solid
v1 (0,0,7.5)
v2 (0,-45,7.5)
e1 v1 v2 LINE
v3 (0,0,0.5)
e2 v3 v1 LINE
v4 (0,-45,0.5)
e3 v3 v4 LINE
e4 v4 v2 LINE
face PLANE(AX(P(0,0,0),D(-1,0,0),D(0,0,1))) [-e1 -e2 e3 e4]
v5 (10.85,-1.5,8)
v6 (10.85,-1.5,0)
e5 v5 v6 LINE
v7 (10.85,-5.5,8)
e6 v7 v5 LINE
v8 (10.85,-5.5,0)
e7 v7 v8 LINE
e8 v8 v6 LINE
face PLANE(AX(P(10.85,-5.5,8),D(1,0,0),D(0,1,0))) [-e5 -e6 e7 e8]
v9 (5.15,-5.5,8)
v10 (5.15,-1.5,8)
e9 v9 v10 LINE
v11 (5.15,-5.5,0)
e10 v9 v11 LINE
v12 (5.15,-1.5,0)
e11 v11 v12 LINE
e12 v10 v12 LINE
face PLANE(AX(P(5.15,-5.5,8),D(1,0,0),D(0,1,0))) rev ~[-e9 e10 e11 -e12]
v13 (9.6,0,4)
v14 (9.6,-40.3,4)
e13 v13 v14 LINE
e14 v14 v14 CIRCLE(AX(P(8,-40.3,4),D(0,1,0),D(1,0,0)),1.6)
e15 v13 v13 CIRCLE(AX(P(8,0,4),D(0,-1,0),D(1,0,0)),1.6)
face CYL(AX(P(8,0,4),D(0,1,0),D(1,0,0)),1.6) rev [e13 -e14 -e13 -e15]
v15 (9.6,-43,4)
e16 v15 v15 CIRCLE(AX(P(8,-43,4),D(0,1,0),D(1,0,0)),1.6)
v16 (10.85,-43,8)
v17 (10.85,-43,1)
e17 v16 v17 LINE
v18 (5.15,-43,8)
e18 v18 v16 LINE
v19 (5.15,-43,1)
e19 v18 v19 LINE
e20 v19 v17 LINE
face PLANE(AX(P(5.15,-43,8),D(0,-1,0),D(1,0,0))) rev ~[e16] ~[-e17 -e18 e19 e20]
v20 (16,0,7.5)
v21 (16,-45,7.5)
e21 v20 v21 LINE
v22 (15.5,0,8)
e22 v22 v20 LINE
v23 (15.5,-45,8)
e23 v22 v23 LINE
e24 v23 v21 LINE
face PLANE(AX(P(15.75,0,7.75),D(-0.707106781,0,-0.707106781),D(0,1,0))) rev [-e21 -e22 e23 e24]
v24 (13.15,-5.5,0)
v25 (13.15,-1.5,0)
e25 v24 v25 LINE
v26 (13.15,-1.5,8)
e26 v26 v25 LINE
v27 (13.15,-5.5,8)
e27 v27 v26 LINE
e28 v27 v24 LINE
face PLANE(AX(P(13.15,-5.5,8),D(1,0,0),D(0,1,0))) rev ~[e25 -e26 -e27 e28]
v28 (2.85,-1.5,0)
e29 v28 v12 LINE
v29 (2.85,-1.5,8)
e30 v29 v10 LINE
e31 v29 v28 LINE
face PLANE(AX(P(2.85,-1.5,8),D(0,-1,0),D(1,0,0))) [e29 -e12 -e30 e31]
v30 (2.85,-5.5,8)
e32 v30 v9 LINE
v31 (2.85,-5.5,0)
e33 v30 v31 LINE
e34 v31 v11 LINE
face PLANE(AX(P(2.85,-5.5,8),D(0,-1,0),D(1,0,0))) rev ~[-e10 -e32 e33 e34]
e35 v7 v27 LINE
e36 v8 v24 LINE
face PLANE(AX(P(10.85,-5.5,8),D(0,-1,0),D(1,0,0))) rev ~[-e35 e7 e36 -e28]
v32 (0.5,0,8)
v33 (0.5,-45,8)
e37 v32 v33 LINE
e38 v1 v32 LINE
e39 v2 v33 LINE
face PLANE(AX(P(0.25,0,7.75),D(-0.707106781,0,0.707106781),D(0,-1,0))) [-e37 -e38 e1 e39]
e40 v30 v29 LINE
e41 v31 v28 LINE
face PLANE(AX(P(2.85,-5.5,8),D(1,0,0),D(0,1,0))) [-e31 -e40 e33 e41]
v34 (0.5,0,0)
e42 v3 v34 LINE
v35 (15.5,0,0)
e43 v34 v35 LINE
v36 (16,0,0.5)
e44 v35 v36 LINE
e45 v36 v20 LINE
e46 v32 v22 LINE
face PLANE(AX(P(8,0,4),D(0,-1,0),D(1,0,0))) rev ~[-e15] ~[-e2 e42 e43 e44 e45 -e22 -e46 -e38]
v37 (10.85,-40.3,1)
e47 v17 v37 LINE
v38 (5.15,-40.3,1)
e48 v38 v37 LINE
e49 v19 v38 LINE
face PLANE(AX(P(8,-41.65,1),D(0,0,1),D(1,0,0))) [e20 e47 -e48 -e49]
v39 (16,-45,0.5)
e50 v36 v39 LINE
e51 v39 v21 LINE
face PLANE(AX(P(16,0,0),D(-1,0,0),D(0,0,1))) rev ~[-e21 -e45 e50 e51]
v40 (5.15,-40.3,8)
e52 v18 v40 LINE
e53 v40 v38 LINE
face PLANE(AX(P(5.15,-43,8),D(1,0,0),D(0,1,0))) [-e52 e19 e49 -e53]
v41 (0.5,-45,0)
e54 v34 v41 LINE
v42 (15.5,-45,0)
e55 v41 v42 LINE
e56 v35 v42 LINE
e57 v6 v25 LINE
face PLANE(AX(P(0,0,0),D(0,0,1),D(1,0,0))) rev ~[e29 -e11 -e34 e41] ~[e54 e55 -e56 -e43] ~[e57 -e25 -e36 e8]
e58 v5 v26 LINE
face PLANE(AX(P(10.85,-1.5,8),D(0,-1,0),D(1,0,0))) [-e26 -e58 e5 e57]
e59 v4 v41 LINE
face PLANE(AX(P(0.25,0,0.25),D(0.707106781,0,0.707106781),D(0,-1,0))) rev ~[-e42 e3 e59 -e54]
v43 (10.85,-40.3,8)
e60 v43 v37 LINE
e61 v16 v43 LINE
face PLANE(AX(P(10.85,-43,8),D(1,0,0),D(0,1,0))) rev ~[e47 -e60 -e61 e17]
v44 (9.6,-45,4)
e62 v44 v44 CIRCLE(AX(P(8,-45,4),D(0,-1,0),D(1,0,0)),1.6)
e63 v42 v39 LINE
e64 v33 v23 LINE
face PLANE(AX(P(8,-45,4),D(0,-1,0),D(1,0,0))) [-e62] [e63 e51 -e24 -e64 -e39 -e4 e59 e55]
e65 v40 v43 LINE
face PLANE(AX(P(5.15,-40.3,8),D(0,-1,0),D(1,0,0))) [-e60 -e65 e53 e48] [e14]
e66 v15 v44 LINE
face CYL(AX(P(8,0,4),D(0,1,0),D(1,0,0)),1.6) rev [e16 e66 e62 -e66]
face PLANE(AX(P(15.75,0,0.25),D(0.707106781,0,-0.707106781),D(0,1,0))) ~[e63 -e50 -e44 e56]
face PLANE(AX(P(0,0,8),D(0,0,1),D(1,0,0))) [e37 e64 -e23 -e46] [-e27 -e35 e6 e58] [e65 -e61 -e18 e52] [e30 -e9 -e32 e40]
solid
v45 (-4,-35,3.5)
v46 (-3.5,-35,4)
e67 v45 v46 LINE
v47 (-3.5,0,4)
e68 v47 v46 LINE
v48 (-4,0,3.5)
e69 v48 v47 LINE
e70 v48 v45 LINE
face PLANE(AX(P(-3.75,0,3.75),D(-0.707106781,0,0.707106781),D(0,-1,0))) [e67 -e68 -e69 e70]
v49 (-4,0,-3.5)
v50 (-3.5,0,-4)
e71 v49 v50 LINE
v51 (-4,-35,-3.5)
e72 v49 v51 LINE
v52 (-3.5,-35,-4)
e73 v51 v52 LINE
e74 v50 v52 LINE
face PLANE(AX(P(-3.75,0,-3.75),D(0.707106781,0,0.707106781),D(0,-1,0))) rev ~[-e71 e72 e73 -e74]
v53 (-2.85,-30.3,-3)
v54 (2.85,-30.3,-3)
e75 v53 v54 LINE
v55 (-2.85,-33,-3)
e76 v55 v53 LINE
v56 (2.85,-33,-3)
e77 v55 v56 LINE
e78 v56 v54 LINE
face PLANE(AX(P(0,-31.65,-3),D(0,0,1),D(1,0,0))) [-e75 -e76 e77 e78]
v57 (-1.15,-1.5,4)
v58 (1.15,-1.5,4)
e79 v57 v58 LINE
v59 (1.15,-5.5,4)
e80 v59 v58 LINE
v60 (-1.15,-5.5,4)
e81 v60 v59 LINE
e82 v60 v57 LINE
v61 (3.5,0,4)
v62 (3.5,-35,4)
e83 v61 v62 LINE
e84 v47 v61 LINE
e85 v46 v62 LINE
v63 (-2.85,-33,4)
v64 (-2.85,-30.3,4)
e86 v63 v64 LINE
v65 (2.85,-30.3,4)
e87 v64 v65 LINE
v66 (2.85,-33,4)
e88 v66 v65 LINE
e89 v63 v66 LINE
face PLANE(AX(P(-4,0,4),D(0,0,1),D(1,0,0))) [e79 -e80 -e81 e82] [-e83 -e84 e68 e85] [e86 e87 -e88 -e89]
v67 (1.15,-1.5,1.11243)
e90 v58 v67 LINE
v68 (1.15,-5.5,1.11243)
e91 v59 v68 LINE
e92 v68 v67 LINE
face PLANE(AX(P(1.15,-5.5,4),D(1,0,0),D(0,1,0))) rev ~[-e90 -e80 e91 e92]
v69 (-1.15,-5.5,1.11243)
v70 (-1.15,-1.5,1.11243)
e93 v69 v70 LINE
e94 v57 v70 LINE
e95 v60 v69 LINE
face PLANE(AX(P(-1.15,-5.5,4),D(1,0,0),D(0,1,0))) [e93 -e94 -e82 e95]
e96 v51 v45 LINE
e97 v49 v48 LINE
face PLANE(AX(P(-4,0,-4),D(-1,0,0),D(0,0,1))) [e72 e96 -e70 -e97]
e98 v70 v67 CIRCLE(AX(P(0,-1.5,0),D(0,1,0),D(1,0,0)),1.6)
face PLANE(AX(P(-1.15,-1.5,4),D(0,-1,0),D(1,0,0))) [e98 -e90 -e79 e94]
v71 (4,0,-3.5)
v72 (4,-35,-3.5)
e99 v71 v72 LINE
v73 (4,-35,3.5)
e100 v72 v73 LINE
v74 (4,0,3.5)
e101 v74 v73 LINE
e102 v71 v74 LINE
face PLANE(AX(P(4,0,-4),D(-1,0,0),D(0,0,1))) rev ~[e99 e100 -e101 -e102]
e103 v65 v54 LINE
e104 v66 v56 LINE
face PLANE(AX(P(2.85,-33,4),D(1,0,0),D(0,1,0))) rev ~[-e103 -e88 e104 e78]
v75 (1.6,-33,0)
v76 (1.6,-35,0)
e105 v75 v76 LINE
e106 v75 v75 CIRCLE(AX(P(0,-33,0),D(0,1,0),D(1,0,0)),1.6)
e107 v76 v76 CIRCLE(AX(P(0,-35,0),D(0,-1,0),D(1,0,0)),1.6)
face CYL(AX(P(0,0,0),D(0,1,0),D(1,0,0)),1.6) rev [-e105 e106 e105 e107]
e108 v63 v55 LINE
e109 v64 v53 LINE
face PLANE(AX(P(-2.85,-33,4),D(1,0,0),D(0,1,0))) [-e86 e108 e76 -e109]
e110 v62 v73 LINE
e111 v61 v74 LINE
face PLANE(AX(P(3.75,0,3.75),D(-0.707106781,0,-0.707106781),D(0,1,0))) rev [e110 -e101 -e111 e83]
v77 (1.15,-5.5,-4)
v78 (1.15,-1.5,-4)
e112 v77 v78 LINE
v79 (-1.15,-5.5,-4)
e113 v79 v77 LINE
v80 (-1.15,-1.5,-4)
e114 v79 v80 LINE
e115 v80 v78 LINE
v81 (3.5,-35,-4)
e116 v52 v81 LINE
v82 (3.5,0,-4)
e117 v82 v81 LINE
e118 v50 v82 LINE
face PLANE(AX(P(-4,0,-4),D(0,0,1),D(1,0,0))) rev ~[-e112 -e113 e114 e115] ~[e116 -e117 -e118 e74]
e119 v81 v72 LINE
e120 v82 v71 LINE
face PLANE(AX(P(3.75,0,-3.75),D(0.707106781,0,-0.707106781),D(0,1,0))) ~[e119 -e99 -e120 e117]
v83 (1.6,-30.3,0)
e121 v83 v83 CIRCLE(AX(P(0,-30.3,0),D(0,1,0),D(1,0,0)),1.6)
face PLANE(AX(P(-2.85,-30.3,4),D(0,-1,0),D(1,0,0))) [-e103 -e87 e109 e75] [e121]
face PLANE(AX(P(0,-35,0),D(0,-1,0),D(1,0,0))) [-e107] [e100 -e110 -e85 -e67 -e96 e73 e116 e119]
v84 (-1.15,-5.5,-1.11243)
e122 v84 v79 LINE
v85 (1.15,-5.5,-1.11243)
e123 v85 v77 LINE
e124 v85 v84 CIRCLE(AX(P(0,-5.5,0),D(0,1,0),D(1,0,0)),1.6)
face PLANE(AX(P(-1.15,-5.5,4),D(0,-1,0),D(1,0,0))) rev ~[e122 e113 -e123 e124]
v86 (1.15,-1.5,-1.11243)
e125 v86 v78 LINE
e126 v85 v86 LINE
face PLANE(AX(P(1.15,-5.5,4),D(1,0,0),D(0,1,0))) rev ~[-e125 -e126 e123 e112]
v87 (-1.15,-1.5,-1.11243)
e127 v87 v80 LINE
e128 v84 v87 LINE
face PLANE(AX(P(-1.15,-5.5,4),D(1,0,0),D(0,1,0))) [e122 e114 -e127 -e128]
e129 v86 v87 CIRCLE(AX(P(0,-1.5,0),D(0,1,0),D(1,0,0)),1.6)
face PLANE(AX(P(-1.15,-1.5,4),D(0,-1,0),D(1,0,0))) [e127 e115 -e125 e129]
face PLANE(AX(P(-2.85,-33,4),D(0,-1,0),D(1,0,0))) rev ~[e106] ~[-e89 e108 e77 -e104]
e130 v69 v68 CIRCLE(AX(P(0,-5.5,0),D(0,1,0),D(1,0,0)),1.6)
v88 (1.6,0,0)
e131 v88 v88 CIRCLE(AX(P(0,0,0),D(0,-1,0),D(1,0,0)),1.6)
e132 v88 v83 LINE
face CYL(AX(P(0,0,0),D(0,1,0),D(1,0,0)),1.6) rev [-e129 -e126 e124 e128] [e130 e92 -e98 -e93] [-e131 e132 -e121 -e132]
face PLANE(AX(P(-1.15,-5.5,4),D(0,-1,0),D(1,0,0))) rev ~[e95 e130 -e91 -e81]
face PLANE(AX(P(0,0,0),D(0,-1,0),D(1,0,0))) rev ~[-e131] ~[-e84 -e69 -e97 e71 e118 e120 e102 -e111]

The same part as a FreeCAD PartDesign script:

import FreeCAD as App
import Part
import Sketcher
from FreeCAD import Vector
Q = App.Units.Quantity


def edges_at(feature, points):
    """Names of the edges that pass closest to the given points."""
    edges = feature.Shape.Edges
    near = lambda p: min(range(len(edges)), key=lambda i: edges[i].distToShape(Part.Vertex(*p))[0])
    return sorted({f"Edge{near(p) + 1}" for p in points})


def add_polygon(sketch, points):
    """Adds a closed chain of lines whose ends are joined by coincident constraints."""
    first, n = sketch.GeometryCount, len(points)
    for a, b in zip(points, points[1:] + points[:1]):
        sketch.addGeometry(Part.LineSegment(App.Vector(*a, 0), App.Vector(*b, 0)), False)
    for i in range(n):
        sketch.addConstraint(Sketcher.Constraint("Coincident", first + i, 2, first + (i + 1) % n, 1))

doc = App.newDocument("Part")
body = doc.addObject("PartDesign::Body", "Body")

sketch1 = doc.addObject("Sketcher::SketchObject", "Sketch")
body.addObject(sketch1)
sketch1.AttachmentSupport = (doc.XZ_Plane, [""])
sketch1.MapMode = "FlatFace"
add_polygon(sketch1, [(-4, 4), (-4, -4), (4, -4), (4, 4)])
sketch1.addGeometry(Part.Circle(Vector(0, 0, 0), Vector(0, 0, 1), 1.6), False)
sketch1.addConstraint([
    Sketcher.Constraint("Vertical", 0),
    Sketcher.Constraint("Horizontal", 1),
    Sketcher.Constraint("Vertical", 2),
    Sketcher.Constraint("Horizontal", 3),
    Sketcher.Constraint("Coincident", 4, 3, -1, 1),
    Sketcher.Constraint("Symmetric", 0, 2, 2, 2, -1, 1),
    Sketcher.Constraint("Equal", 3, 0),
    Sketcher.Constraint("Diameter", 4, Q("3.2 mm")),
    Sketcher.Constraint("DistanceX", 1, 1, 1, 2, Q("8 mm")),
])
pad1 = doc.addObject("PartDesign::Pad", "Pad")
body.addObject(pad1)
pad1.Profile = sketch1
pad1.Length = 35

sketch2 = doc.addObject("Sketcher::SketchObject", "Sketch001")
body.addObject(sketch2)
sketch2.AttachmentSupport = (doc.XY_Plane, [""])
sketch2.MapMode = "FlatFace"
sketch2.AttachmentOffset = App.Placement(Vector(0, 0, 4), App.Rotation())
add_polygon(sketch2, [(-2.9, -30.3), (-2.9, -33), (2.9, -33), (2.9, -30.3)])
sketch2.addConstraint([
    Sketcher.Constraint("Vertical", 0),
    Sketcher.Constraint("Horizontal", 1),
    Sketcher.Constraint("Vertical", 2),
    Sketcher.Constraint("Horizontal", 3),
    Sketcher.Constraint("DistanceX", 1, 1, 1, 2, Q("5.7 mm")),
    Sketcher.Constraint("DistanceY", 0, 2, 0, 1, Q("2.7 mm")),
    Sketcher.Constraint("DistanceY", 0, 2, -1, 1, Q("33 mm")),
    Sketcher.Constraint("DistanceX", 0, 2, -1, 1, Q("2.85 mm")),
])
pocket1 = doc.addObject("PartDesign::Pocket", "Pocket")
body.addObject(pocket1)
pocket1.Profile = sketch2
pocket1.Length = 7

sketch3 = doc.addObject("Sketcher::SketchObject", "Sketch002")
body.addObject(sketch3)
sketch3.AttachmentSupport = (doc.XY_Plane, [""])
sketch3.MapMode = "FlatFace"
sketch3.AttachmentOffset = App.Placement(Vector(0, 0, 4), App.Rotation())
add_polygon(sketch3, [(-1.1, -1.5), (-1.1, -5.5), (1.1, -5.5), (1.1, -1.5)])
sketch3.addConstraint([
    Sketcher.Constraint("Vertical", 0),
    Sketcher.Constraint("Horizontal", 1),
    Sketcher.Constraint("Vertical", 2),
    Sketcher.Constraint("Horizontal", 3),
    Sketcher.Constraint("DistanceY", 0, 2, 0, 1, Q("4 mm")),
    Sketcher.Constraint("DistanceX", 1, 1, 1, 2, Q("2.3 mm")),
    Sketcher.Constraint("DistanceY", 0, 2, -1, 1, Q("5.5 mm")),
    Sketcher.Constraint("DistanceX", 0, 2, -1, 1, Q("1.15 mm")),
])
pocket2 = doc.addObject("PartDesign::Pocket", "Pocket001")
body.addObject(pocket2)
pocket2.Profile = sketch3
pocket2.Type = "ThroughAll"
doc.recompute()

chamfer = doc.addObject("PartDesign::Chamfer", "Chamfer")
body.addObject(chamfer)
chamfer.Base = (pocket2, edges_at(pocket2, [
    (-4, -17.5, 4),
    (4, -17.5, 4),
    (-4, -17.5, -4),
    (4, -17.5, -4),
]))
chamfer.Size = 0.5
body2 = doc.addObject("PartDesign::Body", "Body001")

sketch4 = doc.addObject("Sketcher::SketchObject", "Sketch003")
body2.addObject(sketch4)
sketch4.AttachmentSupport = (doc.getObject("XZ_Plane001"), [""])
sketch4.MapMode = "FlatFace"
add_polygon(sketch4, [(0, 8), (0, 0), (16, 0), (16, 8)])
sketch4.addGeometry(Part.Circle(Vector(8, 4, 0), Vector(0, 0, 1), 1.6), False)
sketch4.addConstraint([
    Sketcher.Constraint("Vertical", 0),
    Sketcher.Constraint("Horizontal", 1),
    Sketcher.Constraint("Vertical", 2),
    Sketcher.Constraint("Horizontal", 3),
    Sketcher.Constraint("Coincident", 0, 2, -1, 1),
    Sketcher.Constraint("Diameter", 4, Q("3.2 mm")),
    Sketcher.Constraint("DistanceX", 1, 1, 1, 2, Q("16 mm")),
    Sketcher.Constraint("DistanceY", 0, 2, 0, 1, Q("8 mm")),
    Sketcher.Constraint("DistanceX", -1, 1, 4, 3, Q("8 mm")),
    Sketcher.Constraint("DistanceY", -1, 1, 4, 3, Q("4 mm")),
])
pad2 = doc.addObject("PartDesign::Pad", "Pad001")
body2.addObject(pad2)
pad2.Profile = sketch4
pad2.Length = 45

sketch5 = doc.addObject("Sketcher::SketchObject", "Sketch004")
body2.addObject(sketch5)
sketch5.AttachmentSupport = (doc.getObject("XY_Plane001"), [""])
sketch5.MapMode = "FlatFace"
sketch5.AttachmentOffset = App.Placement(Vector(0, 0, 8), App.Rotation())
add_polygon(sketch5, [(5.2, -40.3), (5.2, -43), (10.8, -43), (10.8, -40.3)])
sketch5.addConstraint([
    Sketcher.Constraint("Vertical", 0),
    Sketcher.Constraint("Horizontal", 1),
    Sketcher.Constraint("Vertical", 2),
    Sketcher.Constraint("Horizontal", 3),
    Sketcher.Constraint("DistanceX", 1, 1, 1, 2, Q("5.7 mm")),
    Sketcher.Constraint("DistanceY", 0, 2, 0, 1, Q("2.7 mm")),
    Sketcher.Constraint("DistanceY", 0, 2, -1, 1, Q("43 mm")),
    Sketcher.Constraint("DistanceX", -1, 1, 0, 2, Q("5.15 mm")),
])
pocket3 = doc.addObject("PartDesign::Pocket", "Pocket002")
body2.addObject(pocket3)
pocket3.Profile = sketch5
pocket3.Length = 7
doc.recompute()

chamfer2 = doc.addObject("PartDesign::Chamfer", "Chamfer001")
body2.addObject(chamfer2)
chamfer2.Base = (pocket3, edges_at(pocket3, [
    (0, -22.5, 8),
    (16, -22.5, 8),
    (16, -22.5, 0),
    (0, -22.5, 0),
]))
chamfer2.Size = 0.5

sketch6 = doc.addObject("Sketcher::SketchObject", "Sketch005")
body2.addObject(sketch6)
sketch6.AttachmentSupport = (doc.getObject("XY_Plane001"), [""])
sketch6.MapMode = "FlatFace"
sketch6.AttachmentOffset = App.Placement(Vector(0, 0, 8), App.Rotation())
add_polygon(sketch6, [(2.9, -1.5), (2.9, -5.5), (5.2, -5.5), (5.2, -1.5)])
add_polygon(sketch6, [(10.8, -1.5), (10.8, -5.5), (13.2, -5.5), (13.2, -1.5)])
sketch6.addConstraint([
    Sketcher.Constraint("Vertical", 0),
    Sketcher.Constraint("Horizontal", 1),
    Sketcher.Constraint("Vertical", 2),
    Sketcher.Constraint("Horizontal", 3),
    Sketcher.Constraint("Vertical", 4),
    Sketcher.Constraint("Horizontal", 5),
    Sketcher.Constraint("Vertical", 6),
    Sketcher.Constraint("Horizontal", 7),
    Sketcher.Constraint("Horizontal", 1, 2, 4, 2),
    Sketcher.Constraint("Horizontal", 3, 2, 6, 2),
    Sketcher.Constraint("Equal", 3, 5),
    Sketcher.Constraint("DistanceY", 0, 2, 0, 1, Q("4 mm")),
    Sketcher.Constraint("DistanceX", 1, 1, 1, 2, Q("2.3 mm")),
    Sketcher.Constraint("DistanceX", 0, 2, 4, 2, Q("8 mm")),
    Sketcher.Constraint("DistanceY", 0, 2, -1, 1, Q("5.5 mm")),
    Sketcher.Constraint("DistanceX", -1, 1, 0, 2, Q("2.85 mm")),
])
pocket4 = doc.addObject("PartDesign::Pocket", "Pocket003")
body2.addObject(pocket4)
pocket4.Profile = sketch6
pocket4.Type = "ThroughAll"

doc.recompute()
